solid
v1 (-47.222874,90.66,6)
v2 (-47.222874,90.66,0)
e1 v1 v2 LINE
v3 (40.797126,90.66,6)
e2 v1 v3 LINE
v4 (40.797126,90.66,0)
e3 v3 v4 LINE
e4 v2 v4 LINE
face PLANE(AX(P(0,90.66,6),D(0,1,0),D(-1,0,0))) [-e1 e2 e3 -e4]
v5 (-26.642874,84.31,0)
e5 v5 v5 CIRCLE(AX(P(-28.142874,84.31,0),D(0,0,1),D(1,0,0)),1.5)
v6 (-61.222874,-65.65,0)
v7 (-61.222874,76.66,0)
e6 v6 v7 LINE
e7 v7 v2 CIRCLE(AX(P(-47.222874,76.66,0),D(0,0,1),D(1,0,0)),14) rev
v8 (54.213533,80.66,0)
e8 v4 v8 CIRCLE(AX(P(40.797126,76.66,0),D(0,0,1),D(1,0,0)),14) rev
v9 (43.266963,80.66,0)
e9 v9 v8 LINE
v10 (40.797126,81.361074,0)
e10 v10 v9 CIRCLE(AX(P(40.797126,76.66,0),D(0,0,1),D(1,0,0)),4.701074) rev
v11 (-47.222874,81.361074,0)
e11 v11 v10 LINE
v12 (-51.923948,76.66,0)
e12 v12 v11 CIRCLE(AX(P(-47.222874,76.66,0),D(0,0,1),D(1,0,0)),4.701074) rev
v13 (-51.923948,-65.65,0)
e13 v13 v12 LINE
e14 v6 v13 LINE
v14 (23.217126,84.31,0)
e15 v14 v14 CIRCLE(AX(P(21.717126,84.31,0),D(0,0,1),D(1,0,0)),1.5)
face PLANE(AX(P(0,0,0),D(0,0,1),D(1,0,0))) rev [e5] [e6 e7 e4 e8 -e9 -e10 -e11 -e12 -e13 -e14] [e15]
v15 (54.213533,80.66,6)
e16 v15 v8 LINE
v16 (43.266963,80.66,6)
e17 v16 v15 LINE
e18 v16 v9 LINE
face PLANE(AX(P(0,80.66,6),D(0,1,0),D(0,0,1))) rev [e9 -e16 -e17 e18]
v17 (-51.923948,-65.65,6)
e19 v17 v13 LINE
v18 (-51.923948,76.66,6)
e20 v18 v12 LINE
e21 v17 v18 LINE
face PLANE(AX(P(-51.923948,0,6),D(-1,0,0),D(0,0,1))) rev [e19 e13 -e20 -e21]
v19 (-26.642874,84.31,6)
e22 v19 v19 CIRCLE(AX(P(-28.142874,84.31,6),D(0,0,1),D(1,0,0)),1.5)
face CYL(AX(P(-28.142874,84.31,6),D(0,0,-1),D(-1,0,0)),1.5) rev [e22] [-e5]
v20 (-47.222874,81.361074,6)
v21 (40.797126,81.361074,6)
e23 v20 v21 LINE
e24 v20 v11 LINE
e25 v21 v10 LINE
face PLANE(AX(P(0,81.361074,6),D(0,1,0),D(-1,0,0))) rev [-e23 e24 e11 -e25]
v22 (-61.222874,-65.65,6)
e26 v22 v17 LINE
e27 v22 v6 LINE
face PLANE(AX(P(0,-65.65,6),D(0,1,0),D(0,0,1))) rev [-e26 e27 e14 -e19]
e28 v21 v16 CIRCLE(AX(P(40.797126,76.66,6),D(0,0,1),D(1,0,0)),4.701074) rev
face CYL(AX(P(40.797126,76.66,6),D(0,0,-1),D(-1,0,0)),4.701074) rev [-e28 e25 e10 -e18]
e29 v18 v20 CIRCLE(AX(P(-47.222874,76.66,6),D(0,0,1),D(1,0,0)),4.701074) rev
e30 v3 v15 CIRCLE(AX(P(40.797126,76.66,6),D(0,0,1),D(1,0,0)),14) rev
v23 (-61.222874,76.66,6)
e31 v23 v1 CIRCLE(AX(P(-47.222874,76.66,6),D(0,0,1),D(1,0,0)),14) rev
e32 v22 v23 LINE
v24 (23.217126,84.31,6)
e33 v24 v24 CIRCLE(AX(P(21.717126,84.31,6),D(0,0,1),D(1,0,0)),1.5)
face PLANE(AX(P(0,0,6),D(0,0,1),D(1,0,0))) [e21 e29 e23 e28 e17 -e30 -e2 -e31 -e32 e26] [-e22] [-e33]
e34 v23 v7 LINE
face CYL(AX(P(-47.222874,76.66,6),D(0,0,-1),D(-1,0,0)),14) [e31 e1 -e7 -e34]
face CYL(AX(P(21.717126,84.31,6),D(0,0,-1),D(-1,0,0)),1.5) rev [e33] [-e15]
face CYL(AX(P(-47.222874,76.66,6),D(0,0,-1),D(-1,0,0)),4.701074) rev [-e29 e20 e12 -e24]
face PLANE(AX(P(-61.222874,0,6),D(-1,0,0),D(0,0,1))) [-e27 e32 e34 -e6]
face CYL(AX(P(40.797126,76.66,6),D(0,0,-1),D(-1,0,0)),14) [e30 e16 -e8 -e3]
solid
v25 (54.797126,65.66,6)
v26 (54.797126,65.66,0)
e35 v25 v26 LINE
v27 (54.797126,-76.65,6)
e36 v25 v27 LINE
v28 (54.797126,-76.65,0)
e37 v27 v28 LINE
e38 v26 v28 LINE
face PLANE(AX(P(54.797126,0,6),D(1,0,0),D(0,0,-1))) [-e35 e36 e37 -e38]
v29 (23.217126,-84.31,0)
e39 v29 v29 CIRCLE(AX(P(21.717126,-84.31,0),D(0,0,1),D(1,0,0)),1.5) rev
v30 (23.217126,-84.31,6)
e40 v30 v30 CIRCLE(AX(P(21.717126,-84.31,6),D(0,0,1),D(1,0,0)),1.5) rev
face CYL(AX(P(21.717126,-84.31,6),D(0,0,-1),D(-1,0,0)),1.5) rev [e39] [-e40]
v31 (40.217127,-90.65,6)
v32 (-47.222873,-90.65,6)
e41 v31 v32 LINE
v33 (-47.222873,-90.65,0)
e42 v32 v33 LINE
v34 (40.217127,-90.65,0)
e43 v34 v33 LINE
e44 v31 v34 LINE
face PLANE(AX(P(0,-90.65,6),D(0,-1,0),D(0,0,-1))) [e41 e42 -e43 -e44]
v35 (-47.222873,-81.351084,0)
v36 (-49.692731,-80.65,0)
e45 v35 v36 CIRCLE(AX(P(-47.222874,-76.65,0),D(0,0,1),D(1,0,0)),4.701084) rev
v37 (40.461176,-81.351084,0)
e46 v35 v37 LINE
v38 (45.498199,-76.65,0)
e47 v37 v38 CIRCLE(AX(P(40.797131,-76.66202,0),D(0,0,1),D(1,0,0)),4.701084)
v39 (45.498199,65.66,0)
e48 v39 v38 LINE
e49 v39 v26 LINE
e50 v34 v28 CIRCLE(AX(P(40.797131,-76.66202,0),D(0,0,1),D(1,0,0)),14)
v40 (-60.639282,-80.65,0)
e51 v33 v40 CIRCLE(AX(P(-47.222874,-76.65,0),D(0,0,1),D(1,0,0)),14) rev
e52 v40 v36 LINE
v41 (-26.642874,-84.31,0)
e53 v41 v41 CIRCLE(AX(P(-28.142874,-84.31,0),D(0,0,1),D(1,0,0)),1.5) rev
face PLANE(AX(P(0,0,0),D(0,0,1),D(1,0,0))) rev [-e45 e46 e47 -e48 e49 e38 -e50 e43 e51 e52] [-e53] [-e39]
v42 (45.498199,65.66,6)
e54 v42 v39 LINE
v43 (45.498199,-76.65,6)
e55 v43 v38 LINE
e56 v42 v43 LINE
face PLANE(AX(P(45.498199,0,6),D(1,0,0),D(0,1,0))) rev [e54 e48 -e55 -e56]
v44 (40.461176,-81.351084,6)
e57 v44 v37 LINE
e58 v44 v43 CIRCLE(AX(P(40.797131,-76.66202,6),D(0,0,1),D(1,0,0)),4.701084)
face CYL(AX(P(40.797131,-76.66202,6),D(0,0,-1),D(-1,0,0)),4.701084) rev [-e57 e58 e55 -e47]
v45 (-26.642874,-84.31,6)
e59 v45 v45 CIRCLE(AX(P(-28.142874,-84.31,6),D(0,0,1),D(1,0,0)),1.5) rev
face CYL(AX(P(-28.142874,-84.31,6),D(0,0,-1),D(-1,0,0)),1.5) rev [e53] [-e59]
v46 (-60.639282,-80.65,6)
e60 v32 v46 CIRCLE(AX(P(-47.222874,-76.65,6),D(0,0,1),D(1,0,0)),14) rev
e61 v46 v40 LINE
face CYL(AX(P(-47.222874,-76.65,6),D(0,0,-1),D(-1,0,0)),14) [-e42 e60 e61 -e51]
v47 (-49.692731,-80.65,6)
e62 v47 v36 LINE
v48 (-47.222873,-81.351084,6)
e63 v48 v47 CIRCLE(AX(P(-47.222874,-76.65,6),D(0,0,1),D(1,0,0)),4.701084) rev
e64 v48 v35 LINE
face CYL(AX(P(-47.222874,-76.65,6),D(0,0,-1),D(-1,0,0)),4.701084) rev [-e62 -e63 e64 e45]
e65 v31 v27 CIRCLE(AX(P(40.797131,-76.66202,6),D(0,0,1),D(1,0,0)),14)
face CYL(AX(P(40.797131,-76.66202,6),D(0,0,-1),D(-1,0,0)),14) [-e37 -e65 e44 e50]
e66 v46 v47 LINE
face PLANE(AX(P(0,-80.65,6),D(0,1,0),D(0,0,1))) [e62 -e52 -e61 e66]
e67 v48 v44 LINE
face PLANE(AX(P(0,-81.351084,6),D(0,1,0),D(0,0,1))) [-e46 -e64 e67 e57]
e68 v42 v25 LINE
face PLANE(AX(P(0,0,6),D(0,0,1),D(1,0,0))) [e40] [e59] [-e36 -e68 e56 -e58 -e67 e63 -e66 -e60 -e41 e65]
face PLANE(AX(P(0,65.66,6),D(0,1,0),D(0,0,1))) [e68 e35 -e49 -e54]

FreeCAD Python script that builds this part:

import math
import FreeCAD as App
import Part
import Sketcher
from FreeCAD import Vector
Q = App.Units.Quantity

doc = App.newDocument("Part")
body = doc.addObject("PartDesign::Body", "Body")

sketch1 = body.newObject("Sketcher::SketchObject", "Sketch")
sketch1.AttachmentSupport = (doc.getObject("XY_Plane"), [""])
sketch1.MapMode = "FlatFace"
sketch1.addGeometry([
    Part.LineSegment(Vector(-61.2, 76.7, 0), Vector(-61.2, -65.7, 0)),
    Part.LineSegment(Vector(-61.2, -65.7, 0), Vector(-51.9, -65.7, 0)),
    Part.LineSegment(Vector(-51.9, -65.7, 0), Vector(-51.9, 76.7, 0)),
    Part.ArcOfCircle(Part.Circle(Vector(-47.2, 76.7, 0), Vector(0, 0, 1), 4.7), math.radians(90), math.radians(180)),
    Part.LineSegment(Vector(-47.2, 81.4, 0), Vector(40.8, 81.4, 0)),
    Part.ArcOfCircle(Part.Circle(Vector(40.8, 76.7, 0), Vector(0, 0, 1), 4.7), math.radians(58), math.radians(90)),
    Part.LineSegment(Vector(43.3, 80.7, 0), Vector(54.2, 80.7, 0)),
    Part.ArcOfCircle(Part.Circle(Vector(40.8, 76.7, 0), Vector(0, 0, 1), 14), math.radians(17), math.radians(90)),
    Part.LineSegment(Vector(40.8, 90.7, 0), Vector(-47.2, 90.7, 0)),
    Part.ArcOfCircle(Part.Circle(Vector(-47.2, 76.7, 0), Vector(0, 0, 1), 14), math.radians(90), math.radians(180)),
    Part.Circle(Vector(21.7, 84.3, 0), Vector(0, 0, 1), 1.5),
    Part.Circle(Vector(-28.1, 84.3, 0), Vector(0, 0, 1), 1.5),
], False)
sketch1.addConstraint([
    Sketcher.Constraint("Coincident", 0, 2, 1, 1),
    Sketcher.Constraint("Coincident", 1, 2, 2, 1),
    Sketcher.Constraint("Tangent", 2, 2, 3, 2),
    Sketcher.Constraint("Tangent", 3, 1, 4, 1),
    Sketcher.Constraint("Tangent", 4, 2, 5, 2),
    Sketcher.Constraint("Coincident", 5, 1, 6, 1),
    Sketcher.Constraint("Coincident", 6, 2, 7, 1),
    Sketcher.Constraint("Tangent", 7, 2, 8, 1),
    Sketcher.Constraint("Tangent", 8, 2, 9, 1),
    Sketcher.Constraint("Tangent", 9, 2, 0, 1),
    Sketcher.Constraint("Vertical", 0),
    Sketcher.Constraint("Horizontal", 1),
    Sketcher.Constraint("Vertical", 2),
    Sketcher.Constraint("Horizontal", 4),
    Sketcher.Constraint("Horizontal", 6),
    Sketcher.Constraint("Horizontal", 8),
    Sketcher.Constraint("Coincident", 7, 3, 5, 3),
    Sketcher.Constraint("Coincident", 9, 3, 3, 3),
    Sketcher.Constraint("Equal", 3, 5),
    Sketcher.Constraint("Equal", 10, 11),
    Sketcher.Constraint("Horizontal", 10, 3, 11, 3),
    Sketcher.Constraint("Diameter", 10, Q("3 mm")),
    Sketcher.Constraint("Radius", 7, Q("14 mm")),
    Sketcher.Constraint("DistanceY", 7, 3, 5, 1, Q("4 mm")),
    Sketcher.Constraint("DistanceX", 4, 1, 4, 2, Q("88.02 mm")),
    Sketcher.Constraint("DistanceY", 0, 2, 0, 1, Q("142.31 mm")),
    Sketcher.Constraint("DistanceY", -1, 1, 3, 3, Q("76.66 mm")),
    Sketcher.Constraint("DistanceY", -1, 1, 10, 3, Q("84.31 mm")),
    Sketcher.Constraint("DistanceX", 10, 3, 7, 3, Q("19.08 mm")),
    Sketcher.Constraint("DistanceX", 3, 3, 11, 3, Q("19.08 mm")),
    Sketcher.Constraint("Radius", 3, Q("4.701074 mm")),
    Sketcher.Constraint("DistanceX", 1, 2, -1, 1, Q("51.923948 mm")),
])
pad1 = body.newObject("PartDesign::Pad", "Pad")
pad1.Profile = sketch1
pad1.Length = 6
body2 = doc.addObject("PartDesign::Body", "Body001")

sketch2 = body2.newObject("Sketcher::SketchObject", "Sketch001")
sketch2.AttachmentSupport = (doc.getObject("XY_Plane001"), [""])
sketch2.MapMode = "FlatFace"
sketch2.addGeometry([
    Part.LineSegment(Vector(54.8, -76.7, 0), Vector(54.8, 65.7, 0)),
    Part.LineSegment(Vector(54.8, 65.7, 0), Vector(45.5, 65.7, 0)),
    Part.LineSegment(Vector(45.5, 65.7, 0), Vector(45.5, -76.7, 0)),
    Part.ArcOfCircle(Part.Circle(Vector(40.8, -76.7, 0), Vector(0, 0, 1), 4.7), math.radians(-94), math.radians(0)),
    Part.LineSegment(Vector(40.5, -81.4, 0), Vector(-47.2, -81.4, 0)),
    Part.ArcOfCircle(Part.Circle(Vector(-47.2, -76.7, 0), Vector(0, 0, 1), 4.7), math.radians(-122), math.radians(-90)),
    Part.LineSegment(Vector(-49.7, -80.7, 0), Vector(-60.6, -80.7, 0)),
    Part.ArcOfCircle(Part.Circle(Vector(-47.2, -76.7, 0), Vector(0, 0, 1), 14), math.radians(-163), math.radians(-90)),
    Part.LineSegment(Vector(-47.2, -90.7, 0), Vector(40.2, -90.7, 0)),
    Part.ArcOfCircle(Part.Circle(Vector(40.8, -76.7, 0), Vector(0, 0, 1), 14), math.radians(-92), math.radians(0)),
    Part.Circle(Vector(21.7, -84.3, 0), Vector(0, 0, 1), 1.5),
    Part.Circle(Vector(-28.1, -84.3, 0), Vector(0, 0, 1), 1.5),
], False)
sketch2.addConstraint([
    Sketcher.Constraint("Coincident", 0, 2, 1, 1),
    Sketcher.Constraint("Coincident", 1, 2, 2, 1),
    Sketcher.Constraint("Coincident", 2, 2, 3, 2),
    Sketcher.Constraint("Coincident", 3, 1, 4, 1),
    Sketcher.Constraint("Tangent", 4, 2, 5, 2),
    Sketcher.Constraint("Coincident", 5, 1, 6, 1),
    Sketcher.Constraint("Coincident", 6, 2, 7, 1),
    Sketcher.Constraint("Tangent", 7, 2, 8, 1),
    Sketcher.Constraint("Coincident", 8, 2, 9, 1),
    Sketcher.Constraint("Coincident", 9, 2, 0, 1),
    Sketcher.Constraint("Vertical", 0),
    Sketcher.Constraint("Horizontal", 1),
    Sketcher.Constraint("Vertical", 2),
    Sketcher.Constraint("Horizontal", 4),
    Sketcher.Constraint("Horizontal", 6),
    Sketcher.Constraint("Horizontal", 8),
    Sketcher.Constraint("Coincident", 7, 3, 5, 3),
    Sketcher.Constraint("Coincident", 9, 3, 3, 3),
    Sketcher.Constraint("Equal", 3, 5),
    Sketcher.Constraint("Equal", 7, 9),
    Sketcher.Constraint("Equal", 10, 11),
    Sketcher.Constraint("Horizontal", 10, 3, 11, 3),
    Sketcher.Constraint("Horizontal", 7, 3, 2, 2),
    Sketcher.Constraint("Horizontal", 2, 2, 9, 2),
    Sketcher.Constraint("Diameter", 10, Q("3 mm")),
    Sketcher.Constraint("Radius", 7, Q("14 mm")),
    Sketcher.Constraint("DistanceY", 5, 1, 5, 3, Q("4 mm")),
    Sketcher.Constraint("DistanceX", 8, 1, 8, 2, Q("87.44 mm")),
    Sketcher.Constraint("DistanceY", 0, 1, 0, 2, Q("142.31 mm")),
    Sketcher.Constraint("DistanceX", 10, 3, 8, 2, Q("18.500002 mm")),
    Sketcher.Constraint("DistanceY", 5, 3, -1, 1, Q("76.65 mm")),
    Sketcher.Constraint("DistanceY", 10, 3, -1, 1, Q("84.31 mm")),
    Sketcher.Constraint("DistanceX", 5, 3, 11, 3, Q("19.08 mm")),
    Sketcher.Constraint("DistanceX", 10, 3, 0, 2, Q("33.08 mm")),
    Sketcher.Constraint("Radius", 3, Q("4.701084 mm")),
    Sketcher.Constraint("DistanceX", -1, 1, 1, 2, Q("45.498199 mm")),
])
pad2 = body2.newObject("PartDesign::Pad", "Pad001")
pad2.Profile = sketch2
pad2.Length = 6

doc.recompute()
